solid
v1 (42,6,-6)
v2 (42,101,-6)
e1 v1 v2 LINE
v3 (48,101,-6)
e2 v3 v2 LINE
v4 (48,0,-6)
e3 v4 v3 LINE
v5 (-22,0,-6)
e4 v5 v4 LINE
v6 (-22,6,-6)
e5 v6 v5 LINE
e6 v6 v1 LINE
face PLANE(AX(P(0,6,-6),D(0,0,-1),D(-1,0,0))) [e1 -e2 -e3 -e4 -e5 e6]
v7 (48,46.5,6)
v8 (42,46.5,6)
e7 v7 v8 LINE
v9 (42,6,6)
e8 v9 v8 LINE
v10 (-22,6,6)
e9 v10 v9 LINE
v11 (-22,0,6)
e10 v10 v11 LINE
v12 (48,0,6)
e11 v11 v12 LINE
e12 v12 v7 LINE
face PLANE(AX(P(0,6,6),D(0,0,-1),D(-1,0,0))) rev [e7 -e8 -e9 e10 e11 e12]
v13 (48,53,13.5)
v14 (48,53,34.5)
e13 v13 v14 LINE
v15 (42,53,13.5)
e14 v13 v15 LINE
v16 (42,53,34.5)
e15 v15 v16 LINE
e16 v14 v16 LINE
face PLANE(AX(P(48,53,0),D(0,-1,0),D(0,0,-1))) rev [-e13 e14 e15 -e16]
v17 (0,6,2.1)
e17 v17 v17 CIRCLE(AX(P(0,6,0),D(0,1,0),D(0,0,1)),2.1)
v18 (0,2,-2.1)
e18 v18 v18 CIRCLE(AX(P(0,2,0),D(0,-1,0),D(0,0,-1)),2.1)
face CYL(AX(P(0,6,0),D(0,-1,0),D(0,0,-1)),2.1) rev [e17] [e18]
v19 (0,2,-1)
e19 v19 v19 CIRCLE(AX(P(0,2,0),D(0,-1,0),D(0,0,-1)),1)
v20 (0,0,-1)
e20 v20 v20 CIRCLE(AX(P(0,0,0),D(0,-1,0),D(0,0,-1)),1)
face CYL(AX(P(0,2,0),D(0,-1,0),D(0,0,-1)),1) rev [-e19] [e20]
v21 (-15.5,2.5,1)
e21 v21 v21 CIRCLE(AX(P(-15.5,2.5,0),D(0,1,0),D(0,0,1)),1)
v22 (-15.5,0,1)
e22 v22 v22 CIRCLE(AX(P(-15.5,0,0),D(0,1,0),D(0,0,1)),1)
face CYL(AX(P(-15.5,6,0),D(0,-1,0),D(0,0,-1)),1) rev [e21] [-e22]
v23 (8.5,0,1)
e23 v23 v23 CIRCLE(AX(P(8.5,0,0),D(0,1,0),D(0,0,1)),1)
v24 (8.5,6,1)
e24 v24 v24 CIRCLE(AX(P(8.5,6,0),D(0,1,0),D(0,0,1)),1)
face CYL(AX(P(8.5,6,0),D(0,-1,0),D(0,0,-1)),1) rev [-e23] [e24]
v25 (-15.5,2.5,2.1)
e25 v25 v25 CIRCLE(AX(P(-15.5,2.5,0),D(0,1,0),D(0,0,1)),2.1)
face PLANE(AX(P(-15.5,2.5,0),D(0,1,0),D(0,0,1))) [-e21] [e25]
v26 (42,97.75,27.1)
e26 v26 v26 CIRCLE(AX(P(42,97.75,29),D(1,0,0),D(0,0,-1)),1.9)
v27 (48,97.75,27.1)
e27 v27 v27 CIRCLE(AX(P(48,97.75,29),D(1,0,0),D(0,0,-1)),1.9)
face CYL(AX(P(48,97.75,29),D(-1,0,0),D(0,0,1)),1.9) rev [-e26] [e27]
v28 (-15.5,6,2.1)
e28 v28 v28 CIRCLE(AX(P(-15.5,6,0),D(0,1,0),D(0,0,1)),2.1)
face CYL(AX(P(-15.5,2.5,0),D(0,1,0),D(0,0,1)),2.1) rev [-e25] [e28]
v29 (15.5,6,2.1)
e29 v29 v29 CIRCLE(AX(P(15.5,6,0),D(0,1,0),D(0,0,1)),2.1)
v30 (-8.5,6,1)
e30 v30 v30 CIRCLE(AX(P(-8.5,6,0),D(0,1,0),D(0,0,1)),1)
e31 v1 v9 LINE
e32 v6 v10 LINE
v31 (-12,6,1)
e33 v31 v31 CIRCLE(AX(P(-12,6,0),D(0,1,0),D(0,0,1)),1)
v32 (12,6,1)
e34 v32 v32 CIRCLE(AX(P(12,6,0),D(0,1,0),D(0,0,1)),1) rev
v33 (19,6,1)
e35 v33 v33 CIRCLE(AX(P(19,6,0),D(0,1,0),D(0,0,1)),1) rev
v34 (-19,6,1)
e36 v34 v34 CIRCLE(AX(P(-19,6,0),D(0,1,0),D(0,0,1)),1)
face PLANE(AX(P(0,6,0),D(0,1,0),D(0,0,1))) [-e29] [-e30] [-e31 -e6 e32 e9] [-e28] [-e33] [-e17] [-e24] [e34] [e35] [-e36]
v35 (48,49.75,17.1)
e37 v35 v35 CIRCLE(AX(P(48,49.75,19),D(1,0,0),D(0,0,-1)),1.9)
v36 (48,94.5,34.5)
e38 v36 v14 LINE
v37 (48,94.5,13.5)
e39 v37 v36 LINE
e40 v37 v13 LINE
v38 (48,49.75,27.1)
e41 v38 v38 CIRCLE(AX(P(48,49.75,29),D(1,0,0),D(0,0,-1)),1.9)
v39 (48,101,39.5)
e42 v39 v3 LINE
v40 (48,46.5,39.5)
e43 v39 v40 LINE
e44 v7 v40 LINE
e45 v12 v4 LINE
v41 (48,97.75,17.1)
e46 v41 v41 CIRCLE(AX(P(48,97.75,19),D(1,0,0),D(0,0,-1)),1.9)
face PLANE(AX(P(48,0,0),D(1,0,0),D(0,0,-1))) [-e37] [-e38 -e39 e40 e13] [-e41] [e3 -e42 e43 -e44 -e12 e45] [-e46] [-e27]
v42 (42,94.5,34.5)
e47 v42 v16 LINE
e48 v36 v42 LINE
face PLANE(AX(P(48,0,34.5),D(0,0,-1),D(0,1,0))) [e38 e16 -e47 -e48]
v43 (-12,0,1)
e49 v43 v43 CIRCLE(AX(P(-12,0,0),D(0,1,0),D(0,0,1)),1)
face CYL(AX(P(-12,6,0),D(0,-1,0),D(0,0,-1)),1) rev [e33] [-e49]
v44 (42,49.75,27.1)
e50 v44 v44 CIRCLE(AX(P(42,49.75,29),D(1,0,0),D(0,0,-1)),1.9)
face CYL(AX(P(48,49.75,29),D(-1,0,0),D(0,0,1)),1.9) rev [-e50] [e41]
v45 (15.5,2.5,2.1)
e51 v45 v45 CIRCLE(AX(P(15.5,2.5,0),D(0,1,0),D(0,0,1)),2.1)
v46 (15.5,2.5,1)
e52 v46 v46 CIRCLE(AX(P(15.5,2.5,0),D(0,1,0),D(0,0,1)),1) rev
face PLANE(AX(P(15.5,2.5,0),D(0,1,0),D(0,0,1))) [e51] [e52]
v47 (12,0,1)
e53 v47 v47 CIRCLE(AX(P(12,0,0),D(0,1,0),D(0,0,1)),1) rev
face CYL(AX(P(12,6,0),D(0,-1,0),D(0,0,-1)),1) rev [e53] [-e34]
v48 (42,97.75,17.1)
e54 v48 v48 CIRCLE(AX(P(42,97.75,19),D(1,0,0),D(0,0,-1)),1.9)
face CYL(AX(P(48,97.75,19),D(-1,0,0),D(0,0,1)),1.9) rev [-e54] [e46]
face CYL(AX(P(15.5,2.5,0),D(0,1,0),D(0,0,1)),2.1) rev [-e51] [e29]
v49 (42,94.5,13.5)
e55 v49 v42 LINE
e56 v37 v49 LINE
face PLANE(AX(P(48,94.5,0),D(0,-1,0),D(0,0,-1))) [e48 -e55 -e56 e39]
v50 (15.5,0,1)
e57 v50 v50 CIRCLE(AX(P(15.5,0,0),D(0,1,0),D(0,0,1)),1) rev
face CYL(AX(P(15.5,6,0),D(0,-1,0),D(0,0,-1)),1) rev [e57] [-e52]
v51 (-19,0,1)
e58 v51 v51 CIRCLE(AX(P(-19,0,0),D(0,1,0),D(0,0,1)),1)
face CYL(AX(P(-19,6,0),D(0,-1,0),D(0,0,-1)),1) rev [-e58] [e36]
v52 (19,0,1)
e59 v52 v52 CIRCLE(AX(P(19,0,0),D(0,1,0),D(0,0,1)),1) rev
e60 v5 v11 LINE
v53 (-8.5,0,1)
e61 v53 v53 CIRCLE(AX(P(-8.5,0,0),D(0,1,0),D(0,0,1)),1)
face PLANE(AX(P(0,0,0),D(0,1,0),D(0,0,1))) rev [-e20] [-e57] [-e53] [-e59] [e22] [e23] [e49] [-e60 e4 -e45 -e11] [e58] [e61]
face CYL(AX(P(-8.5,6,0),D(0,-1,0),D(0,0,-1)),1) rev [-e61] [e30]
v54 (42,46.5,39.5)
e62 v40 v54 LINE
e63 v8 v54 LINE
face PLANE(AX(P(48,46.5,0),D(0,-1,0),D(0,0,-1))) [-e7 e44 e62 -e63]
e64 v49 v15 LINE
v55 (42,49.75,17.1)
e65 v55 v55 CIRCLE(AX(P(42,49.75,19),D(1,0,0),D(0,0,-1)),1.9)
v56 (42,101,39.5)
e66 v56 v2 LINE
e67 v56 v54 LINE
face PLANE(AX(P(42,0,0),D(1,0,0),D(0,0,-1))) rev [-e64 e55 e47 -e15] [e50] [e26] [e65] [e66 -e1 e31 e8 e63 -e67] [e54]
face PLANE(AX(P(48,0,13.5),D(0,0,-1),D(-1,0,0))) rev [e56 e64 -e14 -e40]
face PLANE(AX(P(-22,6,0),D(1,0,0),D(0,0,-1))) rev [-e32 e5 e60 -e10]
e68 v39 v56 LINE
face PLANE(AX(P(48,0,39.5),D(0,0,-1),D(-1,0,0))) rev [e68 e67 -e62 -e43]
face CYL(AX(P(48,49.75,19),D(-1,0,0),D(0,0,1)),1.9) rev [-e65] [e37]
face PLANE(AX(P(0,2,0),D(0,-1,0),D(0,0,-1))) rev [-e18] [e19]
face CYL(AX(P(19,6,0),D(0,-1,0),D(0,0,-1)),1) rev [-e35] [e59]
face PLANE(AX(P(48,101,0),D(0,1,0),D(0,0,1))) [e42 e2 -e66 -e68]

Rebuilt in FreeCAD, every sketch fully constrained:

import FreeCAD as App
import Part
import Sketcher
from FreeCAD import Vector


def add_polygon(sketch, points):
    """Adds a closed chain of lines whose ends are joined by coincident constraints."""
    first, n = sketch.GeometryCount, len(points)
    for a, b in zip(points, points[1:] + points[:1]):
        sketch.addGeometry(Part.LineSegment(App.Vector(*a, 0), App.Vector(*b, 0)), False)
    for i in range(n):
        sketch.addConstraint(Sketcher.Constraint("Coincident", first + i, 2, first + (i + 1) % n, 1))

doc = App.newDocument("Part")
params = doc.addObject("Spreadsheet::Sheet", "Params")
for row, (alias, value) in enumerate([
    ("sketch1_diameter", "2 mm"),
    ("sketch1_diameter2", "4.2 mm"),
    ("sketch1_width", "44 mm"),
    ("sketch1_height", "12 mm"),
    ("pad1_length", "6 mm"),
    ("sketch2_width", "6 mm"),
    ("sketch2_height", "12 mm"),
    ("pad2_length", "20 mm"),
    ("sketch3_diameter", "3.8 mm"),
    ("sketch3_width", "101 mm"),
    ("sketch3_height", "12 mm"),
    ("sketch3_height2", "21 mm"),
    ("sketch3_width2", "46.5 mm"),
    ("pad3_length", "6 mm"),
    ("sketch4_diameter", "2 mm"),
    ("sketch4_diameter2", "4.2 mm"),
    ("pad4_length", "2 mm"),
    ("sketch5_diameter", "4.2 mm"),
    ("pocket1_length", "3.5 mm"),
], start=1):
    params.set(f"A{row}", alias)
    params.set(f"B{row}", "=" + value)
    params.setAlias(f"B{row}", alias)

body = doc.addObject("PartDesign::Body", "Body")

# Sketch on XZ plane
sketch1 = body.newObject("Sketcher::SketchObject", "Sketch")
sketch1.AttachmentSupport = (doc.getObject("XZ_Plane"), [""])
sketch1.MapMode = "FlatFace"
add_polygon(sketch1, [(-22, -6), (-22, 6), (22, 6), (22, -6)])  # lines 0-3
sketch1.addGeometry(Part.Circle(Vector(-19, 0, 0), Vector(0, 0, 1), 1), False)  # 4
sketch1.addGeometry(Part.Circle(Vector(-15.5, 0, 0), Vector(0, 0, 1), 1), False)  # 5
sketch1.addGeometry(Part.Circle(Vector(-12, 0, 0), Vector(0, 0, 1), 1), False)  # 6
sketch1.addGeometry(Part.Circle(Vector(-8.5, 0, 0), Vector(0, 0, 1), 1), False)  # 7
sketch1.addGeometry(Part.Circle(Vector(0, 0, 0), Vector(0, 0, 1), 2.1), False)  # 8
sketch1.addGeometry(Part.Circle(Vector(8.5, 0, 0), Vector(0, 0, 1), 1), False)  # 9
sketch1.addGeometry(Part.Circle(Vector(12, 0, 0), Vector(0, 0, 1), 1), False)  # 10
sketch1.addGeometry(Part.Circle(Vector(15.5, 0, 0), Vector(0, 0, 1), 1), False)  # 11
sketch1.addGeometry(Part.Circle(Vector(19, 0, 0), Vector(0, 0, 1), 1), False)  # 12
sketch1.addConstraint(Sketcher.Constraint("Vertical", 0))
sketch1.addConstraint(Sketcher.Constraint("Horizontal", 1))
sketch1.addConstraint(Sketcher.Constraint("Vertical", 2))
sketch1.addConstraint(Sketcher.Constraint("Horizontal", 3))
sketch1.addConstraint(Sketcher.Constraint("Coincident", 8, 3, -1, 1))
sketch1.addConstraint(Sketcher.Constraint("Equal", 4, 5))
sketch1.addConstraint(Sketcher.Constraint("Equal", 5, 6))
sketch1.addConstraint(Sketcher.Constraint("Equal", 6, 7))
sketch1.addConstraint(Sketcher.Constraint("Equal", 7, 9))
sketch1.addConstraint(Sketcher.Constraint("Equal", 9, 10))
sketch1.addConstraint(Sketcher.Constraint("Equal", 10, 11))
sketch1.addConstraint(Sketcher.Constraint("Equal", 11, 12))
sketch1.addConstraint(Sketcher.Constraint("Symmetric", 7, 3, 9, 3, -1, 1))
sketch1.addConstraint(Sketcher.Constraint("Symmetric", 6, 3, 10, 3, -1, 1))
sketch1.addConstraint(Sketcher.Constraint("Symmetric", 5, 3, 11, 3, -1, 1))
sketch1.addConstraint(Sketcher.Constraint("Symmetric", 4, 3, 12, 3, -1, 1))
sketch1.addConstraint(Sketcher.Constraint("Symmetric", 0, 2, 2, 2, -1, 1))
sketch1.addConstraint(Sketcher.Constraint("PointOnObject", 4, 3, -1))
sketch1.addConstraint(Sketcher.Constraint("PointOnObject", 5, 3, -1))
sketch1.addConstraint(Sketcher.Constraint("PointOnObject", 6, 3, -1))
sketch1.addConstraint(Sketcher.Constraint("PointOnObject", 7, 3, -1))
sketch1.addConstraint(Sketcher.Constraint("Diameter", 4, 2.0))
sketch1.addConstraint(Sketcher.Constraint("Diameter", 8, 4.2))
sketch1.addConstraint(Sketcher.Constraint("DistanceX", 1, 1, 1, 2, 44.0))
sketch1.addConstraint(Sketcher.Constraint("DistanceY", 0, 1, 0, 2, 12.0))
sketch1.addConstraint(Sketcher.Constraint("DistanceX", 4, 3, -1, 1, 19.0))
sketch1.addConstraint(Sketcher.Constraint("DistanceX", 6, 3, -1, 1, 12.0))
sketch1.addConstraint(Sketcher.Constraint("DistanceX", 5, 3, 7, 3, 7.0))
sketch1.addConstraint(Sketcher.Constraint("DistanceX", 7, 3, 9, 3, 17.0))
sketch1.setExpression("Constraints[25]", "Params.sketch1_diameter")
sketch1.setExpression("Constraints[26]", "Params.sketch1_diameter2")
sketch1.setExpression("Constraints[27]", "Params.sketch1_width")
sketch1.setExpression("Constraints[28]", "Params.sketch1_height")
pad1 = body.newObject("PartDesign::Pad", "Pad")
pad1.Profile = sketch1
pad1.setExpression("Length", "Params.pad1_length")
pad1.Reversed = True

# Sketch on YZ plane
sketch2 = body.newObject("Sketcher::SketchObject", "Sketch001")
sketch2.AttachmentSupport = (doc.getObject("YZ_Plane"), [""])
sketch2.MapMode = "FlatFace"
sketch2.AttachmentOffset = App.Placement(Vector(0, 0, 22), App.Rotation())
add_polygon(sketch2, [(6, 6), (0, 6), (0, -6), (6, -6)])  # lines 0-3
sketch2.addConstraint(Sketcher.Constraint("Horizontal", 0))
sketch2.addConstraint(Sketcher.Constraint("Vertical", 1))
sketch2.addConstraint(Sketcher.Constraint("Horizontal", 2))
sketch2.addConstraint(Sketcher.Constraint("Vertical", 3))
sketch2.addConstraint(Sketcher.Constraint("Symmetric", 0, 2, 1, 2, -1, 1))
sketch2.addConstraint(Sketcher.Constraint("DistanceX", 0, 2, 0, 1, 6.0))
sketch2.addConstraint(Sketcher.Constraint("DistanceY", 1, 2, 1, 1, 12.0))
sketch2.setExpression("Constraints[9]", "Params.sketch2_width")
sketch2.setExpression("Constraints[10]", "Params.sketch2_height")
pad2 = body.newObject("PartDesign::Pad", "Pad001")
pad2.Profile = sketch2
pad2.setExpression("Length", "Params.pad2_length")

# Sketch on YZ plane
sketch3 = body.newObject("Sketcher::SketchObject", "Sketch002")
sketch3.AttachmentSupport = (doc.getObject("YZ_Plane"), [""])
sketch3.MapMode = "FlatFace"
sketch3.AttachmentOffset = App.Placement(Vector(0, 0, 42), App.Rotation())
add_polygon(sketch3, [(46.5, 6), (0, 6), (0, -6), (101, -6), (101, 39.5), (46.5, 39.5)])  # lines 0-5
sketch3.addGeometry(Part.Circle(Vector(49.8, 29, 0), Vector(0, 0, 1), 1.9), False)  # 6
sketch3.addGeometry(Part.Circle(Vector(49.8, 19, 0), Vector(0, 0, 1), 1.9), False)  # 7
add_polygon(sketch3, [(53, 13.5), (53, 34.5), (94.5, 34.5), (94.5, 13.5)])  # lines 8-11
sketch3.addGeometry(Part.Circle(Vector(97.8, 29, 0), Vector(0, 0, 1), 1.9), False)  # 12
sketch3.addGeometry(Part.Circle(Vector(97.8, 19, 0), Vector(0, 0, 1), 1.9), False)  # 13
sketch3.addConstraint(Sketcher.Constraint("Horizontal", 0))
sketch3.addConstraint(Sketcher.Constraint("Vertical", 1))
sketch3.addConstraint(Sketcher.Constraint("Horizontal", 2))
sketch3.addConstraint(Sketcher.Constraint("Vertical", 3))
sketch3.addConstraint(Sketcher.Constraint("Horizontal", 4))
sketch3.addConstraint(Sketcher.Constraint("Vertical", 5))
sketch3.addConstraint(Sketcher.Constraint("Vertical", 8))
sketch3.addConstraint(Sketcher.Constraint("Horizontal", 9))
sketch3.addConstraint(Sketcher.Constraint("Vertical", 10))
sketch3.addConstraint(Sketcher.Constraint("Horizontal", 11))
sketch3.addConstraint(Sketcher.Constraint("Equal", 6, 7))
sketch3.addConstraint(Sketcher.Constraint("Equal", 7, 12))
sketch3.addConstraint(Sketcher.Constraint("Equal", 12, 13))
sketch3.addConstraint(Sketcher.Constraint("Symmetric", 0, 2, 1, 2, -1, 1))
sketch3.addConstraint(Sketcher.Constraint("Horizontal", 6, 3, 12, 3))
sketch3.addConstraint(Sketcher.Constraint("Horizontal", 7, 3, 13, 3))
sketch3.addConstraint(Sketcher.Constraint("Vertical", 6, 3, 7, 3))
sketch3.addConstraint(Sketcher.Constraint("Vertical", 12, 3, 13, 3))
sketch3.addConstraint(Sketcher.Constraint("Diameter", 6, 3.8))
sketch3.addConstraint(Sketcher.Constraint("DistanceX", 2, 1, 2, 2, 101.0))
sketch3.addConstraint(Sketcher.Constraint("DistanceY", 1, 2, 1, 1, 12.0))
sketch3.addConstraint(Sketcher.Constraint("DistanceY", 8, 1, 8, 2, 21.0))
sketch3.addConstraint(Sketcher.Constraint("DistanceX", 0, 2, 0, 1, 46.5))
sketch3.addConstraint(Sketcher.Constraint("DistanceX", 9, 1, 9, 2, 41.5))
sketch3.addConstraint(Sketcher.Constraint("DistanceY", 3, 1, 3, 2, 45.5))
sketch3.addConstraint(Sketcher.Constraint("DistanceY", -1, 1, 6, 3, 29.0))
sketch3.addConstraint(Sketcher.Constraint("DistanceY", -1, 1, 7, 3, 19.0))
sketch3.addConstraint(Sketcher.Constraint("DistanceX", -1, 1, 8, 2, 53.0))
sketch3.addConstraint(Sketcher.Constraint("DistanceX", 6, 3, 12, 3, 48.0))
sketch3.addConstraint(Sketcher.Constraint("DistanceY", 8, 2, 4, 2, 5.0))
sketch3.addConstraint(Sketcher.Constraint("DistanceX", -1, 1, 6, 3, 49.75))
sketch3.setExpression("Constraints[28]", "Params.sketch3_diameter")
sketch3.setExpression("Constraints[29]", "Params.sketch3_width")
sketch3.setExpression("Constraints[30]", "Params.sketch3_height")
sketch3.setExpression("Constraints[31]", "Params.sketch3_height2")
sketch3.setExpression("Constraints[32]", "Params.sketch3_width2")
pad3 = body.newObject("PartDesign::Pad", "Pad002")
pad3.Profile = sketch3
pad3.setExpression("Length", "Params.pad3_length")

# Sketch on XZ plane
sketch4 = body.newObject("Sketcher::SketchObject", "Sketch003")
sketch4.AttachmentSupport = (doc.getObject("XZ_Plane"), [""])
sketch4.MapMode = "FlatFace"
sketch4.addGeometry(Part.Circle(Vector(0, 0, 0), Vector(0, 0, 1), 2.1), False)
sketch4.addGeometry(Part.Circle(Vector(0, 0, 0), Vector(0, 0, 1), 1), False)
sketch4.addConstraint(Sketcher.Constraint("Coincident", 0, 3, -1, 1))
sketch4.addConstraint(Sketcher.Constraint("Coincident", 1, 3, -1, 1))
sketch4.addConstraint(Sketcher.Constraint("Diameter", 1, 2.0))
sketch4.addConstraint(Sketcher.Constraint("Diameter", 0, 4.2))
sketch4.setExpression("Constraints[2]", "Params.sketch4_diameter")
sketch4.setExpression("Constraints[3]", "Params.sketch4_diameter2")
pad4 = body.newObject("PartDesign::Pad", "Pad003")
pad4.Profile = sketch4
pad4.setExpression("Length", "Params.pad4_length")
pad4.Reversed = True

# Sketch on XZ plane
sketch5 = body.newObject("Sketcher::SketchObject", "Sketch004")
sketch5.AttachmentSupport = (doc.getObject("XZ_Plane"), [""])
sketch5.MapMode = "FlatFace"
sketch5.AttachmentOffset = App.Placement(Vector(0, 0, -6), App.Rotation())
sketch5.addGeometry(Part.Circle(Vector(-15.5, 0, 0), Vector(0, 0, 1), 2.1), False)
sketch5.addGeometry(Part.Circle(Vector(15.5, 0, 0), Vector(0, 0, 1), 2.1), False)
sketch5.addConstraint(Sketcher.Constraint("Equal", 0, 1))
sketch5.addConstraint(Sketcher.Constraint("Symmetric", 0, 3, 1, 3, -1, 1))
sketch5.addConstraint(Sketcher.Constraint("PointOnObject", 0, 3, -1))
sketch5.addConstraint(Sketcher.Constraint("Diameter", 0, 4.2))
sketch5.addConstraint(Sketcher.Constraint("DistanceX", 0, 3, 1, 3, 31.0))
sketch5.setExpression("Constraints[3]", "Params.sketch5_diameter")
pocket1 = body.newObject("PartDesign::Pocket", "Pocket")
pocket1.Profile = sketch5
pocket1.setExpression("Length", "Params.pocket1_length")
pocket1.Reversed = True

doc.recompute()
